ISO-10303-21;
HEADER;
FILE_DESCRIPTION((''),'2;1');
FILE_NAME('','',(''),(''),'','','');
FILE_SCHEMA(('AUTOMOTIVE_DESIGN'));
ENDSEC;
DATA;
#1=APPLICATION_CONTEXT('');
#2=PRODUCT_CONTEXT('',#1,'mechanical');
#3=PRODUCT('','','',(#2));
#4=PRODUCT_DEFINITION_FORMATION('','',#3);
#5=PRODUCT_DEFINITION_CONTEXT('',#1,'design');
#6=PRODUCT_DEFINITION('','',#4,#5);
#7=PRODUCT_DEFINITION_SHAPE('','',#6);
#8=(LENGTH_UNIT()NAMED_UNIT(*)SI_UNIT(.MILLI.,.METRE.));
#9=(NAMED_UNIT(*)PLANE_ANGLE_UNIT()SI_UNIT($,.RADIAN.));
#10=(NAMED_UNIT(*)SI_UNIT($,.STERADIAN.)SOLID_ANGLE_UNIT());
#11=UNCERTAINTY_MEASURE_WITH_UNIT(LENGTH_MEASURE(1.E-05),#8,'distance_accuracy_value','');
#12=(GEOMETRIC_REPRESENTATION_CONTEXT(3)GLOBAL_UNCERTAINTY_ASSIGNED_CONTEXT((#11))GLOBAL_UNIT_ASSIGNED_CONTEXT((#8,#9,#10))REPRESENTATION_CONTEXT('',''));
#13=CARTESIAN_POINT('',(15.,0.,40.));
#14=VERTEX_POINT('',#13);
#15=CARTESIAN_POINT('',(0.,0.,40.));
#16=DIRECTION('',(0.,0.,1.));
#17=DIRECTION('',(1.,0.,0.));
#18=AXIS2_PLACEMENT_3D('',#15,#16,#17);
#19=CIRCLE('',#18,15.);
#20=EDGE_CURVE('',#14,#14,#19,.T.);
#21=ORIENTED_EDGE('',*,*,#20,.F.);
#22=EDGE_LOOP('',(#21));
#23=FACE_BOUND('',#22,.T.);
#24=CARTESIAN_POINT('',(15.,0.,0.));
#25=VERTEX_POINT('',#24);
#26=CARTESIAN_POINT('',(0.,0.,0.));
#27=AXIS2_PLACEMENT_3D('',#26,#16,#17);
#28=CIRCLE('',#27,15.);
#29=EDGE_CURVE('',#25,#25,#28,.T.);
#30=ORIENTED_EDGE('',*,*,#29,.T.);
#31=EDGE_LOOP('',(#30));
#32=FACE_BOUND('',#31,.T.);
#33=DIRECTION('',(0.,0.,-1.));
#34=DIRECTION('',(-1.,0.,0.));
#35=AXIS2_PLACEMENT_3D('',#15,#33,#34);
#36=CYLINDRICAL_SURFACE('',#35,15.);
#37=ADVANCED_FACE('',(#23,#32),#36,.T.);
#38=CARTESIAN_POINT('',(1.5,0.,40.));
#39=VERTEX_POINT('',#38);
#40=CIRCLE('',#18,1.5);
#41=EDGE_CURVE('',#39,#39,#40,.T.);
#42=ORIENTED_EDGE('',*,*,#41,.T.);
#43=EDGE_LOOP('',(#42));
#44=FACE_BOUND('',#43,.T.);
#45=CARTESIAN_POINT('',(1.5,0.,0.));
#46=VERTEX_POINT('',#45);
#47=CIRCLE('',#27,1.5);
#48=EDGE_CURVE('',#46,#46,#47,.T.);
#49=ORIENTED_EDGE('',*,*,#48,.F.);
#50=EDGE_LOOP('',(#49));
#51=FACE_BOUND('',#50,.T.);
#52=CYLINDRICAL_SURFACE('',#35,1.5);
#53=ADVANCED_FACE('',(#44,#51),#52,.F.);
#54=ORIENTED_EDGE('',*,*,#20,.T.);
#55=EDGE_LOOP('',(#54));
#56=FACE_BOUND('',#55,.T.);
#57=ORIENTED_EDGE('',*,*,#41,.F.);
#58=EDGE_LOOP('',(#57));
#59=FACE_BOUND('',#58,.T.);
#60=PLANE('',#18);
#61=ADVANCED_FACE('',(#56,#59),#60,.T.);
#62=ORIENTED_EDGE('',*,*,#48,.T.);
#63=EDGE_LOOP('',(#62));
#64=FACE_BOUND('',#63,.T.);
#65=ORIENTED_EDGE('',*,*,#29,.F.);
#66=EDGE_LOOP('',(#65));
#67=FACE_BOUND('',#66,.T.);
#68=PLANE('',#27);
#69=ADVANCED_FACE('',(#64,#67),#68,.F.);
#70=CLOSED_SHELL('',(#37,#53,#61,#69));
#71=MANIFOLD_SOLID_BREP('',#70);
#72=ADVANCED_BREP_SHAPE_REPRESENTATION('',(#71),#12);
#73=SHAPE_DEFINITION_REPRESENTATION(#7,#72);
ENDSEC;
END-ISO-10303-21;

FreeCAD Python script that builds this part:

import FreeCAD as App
import Part
import Sketcher

doc = App.newDocument("Part")
body = doc.addObject("PartDesign::Body", "Body")

sketch1 = doc.addObject("Sketcher::SketchObject", "Sketch")
body.addObject(sketch1)
sketch1.AttachmentSupport = (doc.XY_Plane, [""])
sketch1.MapMode = "FlatFace"
sketch1.addGeometry(Part.Circle(App.Vector(0, 0, 0), App.Vector(0, 0, 1), 15), False)
sketch1.addGeometry(Part.Circle(App.Vector(0, 0, 0), App.Vector(0, 0, 1), 1.5), False)
sketch1.addConstraint(Sketcher.Constraint("Coincident", 0, 3, -1, 1))
sketch1.addConstraint(Sketcher.Constraint("Coincident", 1, 3, -1, 1))
sketch1.addConstraint(Sketcher.Constraint("Diameter", 0, 30.0))
sketch1.addConstraint(Sketcher.Constraint("Diameter", 1, 3.0))
pad1 = doc.addObject("PartDesign::Pad", "Pad")
body.addObject(pad1)
pad1.Profile = sketch1
pad1.Length = 40

doc.recompute()
